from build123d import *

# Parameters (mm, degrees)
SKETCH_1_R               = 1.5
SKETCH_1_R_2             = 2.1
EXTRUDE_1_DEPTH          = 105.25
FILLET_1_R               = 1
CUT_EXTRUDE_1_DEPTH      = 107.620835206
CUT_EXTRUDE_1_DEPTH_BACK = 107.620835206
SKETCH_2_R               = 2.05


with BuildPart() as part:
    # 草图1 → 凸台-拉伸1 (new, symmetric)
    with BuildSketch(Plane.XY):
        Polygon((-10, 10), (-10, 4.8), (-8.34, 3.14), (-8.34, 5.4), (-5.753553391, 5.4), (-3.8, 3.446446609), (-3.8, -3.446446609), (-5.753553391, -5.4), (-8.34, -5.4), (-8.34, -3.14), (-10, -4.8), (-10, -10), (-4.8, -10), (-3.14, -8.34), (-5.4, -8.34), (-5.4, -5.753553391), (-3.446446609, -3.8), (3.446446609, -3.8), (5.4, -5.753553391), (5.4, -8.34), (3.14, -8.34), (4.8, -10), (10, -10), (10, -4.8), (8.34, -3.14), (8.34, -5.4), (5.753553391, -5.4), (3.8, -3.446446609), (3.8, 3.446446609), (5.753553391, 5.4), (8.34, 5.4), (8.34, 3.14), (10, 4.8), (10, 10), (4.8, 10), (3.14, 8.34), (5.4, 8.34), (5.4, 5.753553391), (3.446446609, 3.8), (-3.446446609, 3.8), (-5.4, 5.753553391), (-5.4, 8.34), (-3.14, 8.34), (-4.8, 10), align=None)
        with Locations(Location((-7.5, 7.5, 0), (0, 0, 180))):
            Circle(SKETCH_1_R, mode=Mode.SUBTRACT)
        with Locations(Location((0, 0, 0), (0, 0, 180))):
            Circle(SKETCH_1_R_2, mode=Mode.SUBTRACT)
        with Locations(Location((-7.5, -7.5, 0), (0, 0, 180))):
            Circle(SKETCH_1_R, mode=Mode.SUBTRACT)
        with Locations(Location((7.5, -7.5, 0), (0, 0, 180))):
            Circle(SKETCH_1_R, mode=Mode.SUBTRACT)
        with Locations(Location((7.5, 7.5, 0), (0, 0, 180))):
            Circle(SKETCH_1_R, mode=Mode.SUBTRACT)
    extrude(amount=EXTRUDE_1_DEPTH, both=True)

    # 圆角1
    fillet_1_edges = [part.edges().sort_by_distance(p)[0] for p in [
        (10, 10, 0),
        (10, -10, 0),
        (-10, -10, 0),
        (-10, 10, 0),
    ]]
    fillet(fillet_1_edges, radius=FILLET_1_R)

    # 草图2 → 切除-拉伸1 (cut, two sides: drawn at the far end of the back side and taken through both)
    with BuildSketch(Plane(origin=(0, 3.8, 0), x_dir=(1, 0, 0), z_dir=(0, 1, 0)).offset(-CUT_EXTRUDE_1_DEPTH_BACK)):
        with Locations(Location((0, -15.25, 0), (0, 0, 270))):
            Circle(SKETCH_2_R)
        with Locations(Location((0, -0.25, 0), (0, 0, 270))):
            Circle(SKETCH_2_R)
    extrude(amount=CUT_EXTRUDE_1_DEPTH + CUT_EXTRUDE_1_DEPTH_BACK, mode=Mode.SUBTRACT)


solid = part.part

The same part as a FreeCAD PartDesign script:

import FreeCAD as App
import Part
import Sketcher

V = App.Vector


def edges_at(feature, points):
    """Names of the edges that pass closest to the given points."""
    edges = feature.Shape.Edges
    near = lambda p: min(range(len(edges)), key=lambda i: edges[i].distToShape(Part.Vertex(*p))[0])
    return sorted({f"Edge{near(p) + 1}" for p in points})


def add_polygon(sketch, points):
    """Adds a closed chain of lines whose ends are joined by coincident constraints."""
    first, n = sketch.GeometryCount, len(points)
    for a, b in zip(points, points[1:] + points[:1]):
        sketch.addGeometry(Part.LineSegment(App.Vector(*a, 0), App.Vector(*b, 0)), False)
    for i in range(n):
        sketch.addConstraint(Sketcher.Constraint("Coincident", first + i, 2, first + (i + 1) % n, 1))

doc = App.newDocument("Part")
params = doc.addObject("Spreadsheet::Sheet", "Params")
for row, (alias, value) in enumerate([
    ("sketch1_diameter", "3 mm"),
    ("sketch1_diameter2", "4.2 mm"),
    ("sketch1_width", "5.2 mm"),
    ("sketch1_width2", "2.26 mm"),
    ("pad1_length", "210.5 mm"),
    ("fillet_radius", "1 mm"),
    ("sketch2_diameter", "4.1 mm"),
], start=1):
    params.set(f"A{row}", alias)
    params.set(f"B{row}", "=" + value)
    params.setAlias(f"B{row}", alias)

body = doc.addObject("PartDesign::Body", "Body")

# Sketch on XY plane
sketch1 = body.newObject("Sketcher::SketchObject", "Sketch")
sketch1.AttachmentSupport = (doc.getObject("XY_Plane"), [""])
sketch1.MapMode = "FlatFace"
add_polygon(sketch1, [(-10, 10), (-10, 4.8), (-8.3, 3.1), (-8.3, 5.4), (-5.8, 5.4), (-3.8, 3.4), (-3.8, -3.4), (-5.8, -5.4), (-8.3, -5.4), (-8.3, -3.1), (-10, -4.8), (-10, -10), (-4.8, -10), (-3.1, -8.3), (-5.4, -8.3), (-5.4, -5.8), (-3.4, -3.8), (3.4, -3.8), (5.4, -5.8), (5.4, -8.3), (3.1, -8.3), (4.8, -10), (10, -10), (10, -4.8), (8.3, -3.1), (8.3, -5.4), (5.8, -5.4), (3.8, -3.4), (3.8, 3.4), (5.8, 5.4), (8.3, 5.4), (8.3, 3.1), (10, 4.8), (10, 10), (4.8, 10), (3.1, 8.3), (5.4, 8.3), (5.4, 5.8), (3.4, 3.8), (-3.4, 3.8), (-5.4, 5.8), (-5.4, 8.3), (-3.1, 8.3), (-4.8, 10)])  # lines 0-43
sketch1.addGeometry(Part.Circle(V(-7.5, -7.5, 0), V(0, 0, 1), 1.5), False)  # 44
sketch1.addGeometry(Part.Circle(V(7.5, -7.5, 0), V(0, 0, 1), 1.5), False)  # 45
sketch1.addGeometry(Part.Circle(V(-7.5, 7.5, 0), V(0, 0, 1), 1.5), False)  # 46
sketch1.addGeometry(Part.Circle(V(0, 0, 0), V(0, 0, 1), 2.1), False)  # 47
sketch1.addGeometry(Part.Circle(V(7.5, 7.5, 0), V(0, 0, 1), 1.5), False)  # 48
sketch1.addConstraint([
    Sketcher.Constraint("Vertical", 0),
    Sketcher.Constraint("Vertical", 2),
    Sketcher.Constraint("Horizontal", 3),
    Sketcher.Constraint("Vertical", 5),
    Sketcher.Constraint("Horizontal", 7),
    Sketcher.Constraint("Vertical", 8),
    Sketcher.Constraint("Vertical", 10),
    Sketcher.Constraint("Horizontal", 11),
    Sketcher.Constraint("Horizontal", 13),
    Sketcher.Constraint("Vertical", 14),
    Sketcher.Constraint("Horizontal", 16),
    Sketcher.Constraint("Vertical", 18),
    Sketcher.Constraint("Horizontal", 19),
    Sketcher.Constraint("Horizontal", 21),
    Sketcher.Constraint("Vertical", 22),
    Sketcher.Constraint("Vertical", 24),
    Sketcher.Constraint("Horizontal", 25),
    Sketcher.Constraint("Vertical", 27),
    Sketcher.Constraint("Horizontal", 29),
    Sketcher.Constraint("Vertical", 30),
    Sketcher.Constraint("Vertical", 32),
    Sketcher.Constraint("Horizontal", 33),
    Sketcher.Constraint("Horizontal", 35),
    Sketcher.Constraint("Vertical", 36),
    Sketcher.Constraint("Horizontal", 38),
    Sketcher.Constraint("Vertical", 40),
    Sketcher.Constraint("Horizontal", 41),
    Sketcher.Constraint("Horizontal", 43),
    Sketcher.Constraint("Coincident", 47, 3, -1, 1),
    Sketcher.Constraint("Equal", 44, 45),
    Sketcher.Constraint("Equal", 45, 46),
    Sketcher.Constraint("Equal", 46, 48),
    Sketcher.Constraint("Symmetric", 45, 3, 46, 3, -1, 1),
    Sketcher.Constraint("Symmetric", 44, 3, 48, 3, -1, 1),
    Sketcher.Constraint("Symmetric", 0, 2, 22, 2, -1, 1),
    Sketcher.Constraint("Symmetric", 1, 2, 23, 2, -1, 1),
    Sketcher.Constraint("Symmetric", 3, 2, 25, 2, -1, 1),
    Sketcher.Constraint("Symmetric", 4, 2, 26, 2, -1, 1),
    Sketcher.Constraint("Symmetric", 6, 2, 28, 2, -1, 1),
    Sketcher.Constraint("Symmetric", 8, 2, 30, 2, -1, 1),
    Sketcher.Constraint("Symmetric", 9, 2, 31, 2, -1, 1),
    Sketcher.Constraint("Symmetric", 11, 2, 33, 2, -1, 1),
    Sketcher.Constraint("Symmetric", 12, 2, 34, 2, -1, 1),
    Sketcher.Constraint("Symmetric", 14, 2, 36, 2, -1, 1),
    Sketcher.Constraint("Symmetric", 15, 2, 37, 2, -1, 1),
    Sketcher.Constraint("Symmetric", 17, 2, 39, 2, -1, 1),
    Sketcher.Constraint("Symmetric", 19, 2, 41, 2, -1, 1),
    Sketcher.Constraint("Symmetric", 20, 2, 42, 2, -1, 1),
    Sketcher.Constraint("Symmetric", 44, 3, 45, 3, -2),
    Sketcher.Constraint("Symmetric", 14, 2, 17, 2, -2),
    Sketcher.Constraint("Symmetric", 12, 2, 19, 2, -2),
    Sketcher.Constraint("Symmetric", 11, 2, 20, 2, -2),
    Sketcher.Constraint("Symmetric", 9, 2, 22, 2, -2),
    Sketcher.Constraint("Symmetric", 8, 2, 23, 2, -2),
    Sketcher.Constraint("Symmetric", 6, 2, 25, 2, -2),
    Sketcher.Constraint("Parallel", 1, 4),
    Sketcher.Constraint("Perpendicular", 4, 6),
    Sketcher.Constraint("Parallel", 6, 9),
    Sketcher.Constraint("Parallel", 9, 12),
    Sketcher.Constraint("Parallel", 12, 15),
    Sketcher.Constraint("Perpendicular", 15, 17),
    Sketcher.Constraint("Perpendicular", 26, 28),
    Sketcher.Constraint("Perpendicular", 37, 39),
    Sketcher.Constraint("Equal", 43, 0),
    Sketcher.Constraint("Equal", 41, 2),
    Sketcher.Constraint("Equal", 38, 5),
    Sketcher.Constraint("Equal", 29, 14),
    Sketcher.Constraint("Equal", 9, 12),
    Sketcher.Constraint("Equal", 6, 15),
    Sketcher.Constraint("Diameter", 44, 3.0),
    Sketcher.Constraint("Diameter", 47, 4.2),
    Sketcher.Constraint("DistanceX", 11, 1, 11, 2, 5.2),
    Sketcher.Constraint("DistanceX", 0, 2, -1, 1, 10.0),
    Sketcher.Constraint("DistanceX", 44, 3, 45, 3, 15.0),
    Sketcher.Constraint("DistanceY", 44, 3, 46, 3, 15.0),
    Sketcher.Constraint("DistanceX", 11, 2, 5, 2, 1.0),
    Sketcher.Constraint("DistanceX", 13, 2, 13, 1, 2.26),
    Sketcher.Constraint("DistanceY", -1, 1, 2, 2, 5.4),
    Sketcher.Constraint("Distance", 4, 2.762742),
])
sketch1.setExpression("Constraints[113]", "Params.sketch1_diameter")
sketch1.setExpression("Constraints[114]", "Params.sketch1_diameter2")
sketch1.setExpression("Constraints[115]", "Params.sketch1_width")
sketch1.setExpression("Constraints[120]", "Params.sketch1_width2")
pad1 = body.newObject("PartDesign::Pad", "Pad")
pad1.Profile = sketch1
pad1.setExpression("Length", "Params.pad1_length")
pad1.Midplane = True
doc.recompute()

fillet = body.newObject("PartDesign::Fillet", "Fillet")
fillet.Base = (pad1, edges_at(pad1, [
    (10, 10, 0),
    (10, -10, 0),
    (-10, -10, 0),
    (-10, 10, 0),
]))
fillet.setExpression("Radius", "Params.fillet_radius")

# Sketch on XZ plane
sketch2 = body.newObject("Sketcher::SketchObject", "Sketch001")
sketch2.AttachmentSupport = (doc.getObject("XZ_Plane"), [""])
sketch2.MapMode = "FlatFace"
sketch2.AttachmentOffset = App.Placement(V(0, 0, -3.8), App.Rotation())
sketch2.addGeometry([
    Part.Circle(V(0, 15.2, 0), V(0, 0, 1), 2),
    Part.Circle(V(0, 0.2, 0), V(0, 0, 1), 2),
], False)
sketch2.addConstraint([
    Sketcher.Constraint("Equal", 0, 1),
    Sketcher.Constraint("PointOnObject", 0, 3, -2),
    Sketcher.Constraint("PointOnObject", 1, 3, -2),
    Sketcher.Constraint("Diameter", 0, 4.1),
    Sketcher.Constraint("DistanceY", 1, 3, 0, 3, 15.0),
    Sketcher.Constraint("DistanceY", -1, 1, 0, 3, 15.25),
])
sketch2.setExpression("Constraints[3]", "Params.sketch2_diameter")
pocket1 = body.newObject("PartDesign::Pocket", "Pocket")
pocket1.Profile = sketch2
pocket1.Type = "ThroughAll"
pocket1.Midplane = True

doc.recompute()
